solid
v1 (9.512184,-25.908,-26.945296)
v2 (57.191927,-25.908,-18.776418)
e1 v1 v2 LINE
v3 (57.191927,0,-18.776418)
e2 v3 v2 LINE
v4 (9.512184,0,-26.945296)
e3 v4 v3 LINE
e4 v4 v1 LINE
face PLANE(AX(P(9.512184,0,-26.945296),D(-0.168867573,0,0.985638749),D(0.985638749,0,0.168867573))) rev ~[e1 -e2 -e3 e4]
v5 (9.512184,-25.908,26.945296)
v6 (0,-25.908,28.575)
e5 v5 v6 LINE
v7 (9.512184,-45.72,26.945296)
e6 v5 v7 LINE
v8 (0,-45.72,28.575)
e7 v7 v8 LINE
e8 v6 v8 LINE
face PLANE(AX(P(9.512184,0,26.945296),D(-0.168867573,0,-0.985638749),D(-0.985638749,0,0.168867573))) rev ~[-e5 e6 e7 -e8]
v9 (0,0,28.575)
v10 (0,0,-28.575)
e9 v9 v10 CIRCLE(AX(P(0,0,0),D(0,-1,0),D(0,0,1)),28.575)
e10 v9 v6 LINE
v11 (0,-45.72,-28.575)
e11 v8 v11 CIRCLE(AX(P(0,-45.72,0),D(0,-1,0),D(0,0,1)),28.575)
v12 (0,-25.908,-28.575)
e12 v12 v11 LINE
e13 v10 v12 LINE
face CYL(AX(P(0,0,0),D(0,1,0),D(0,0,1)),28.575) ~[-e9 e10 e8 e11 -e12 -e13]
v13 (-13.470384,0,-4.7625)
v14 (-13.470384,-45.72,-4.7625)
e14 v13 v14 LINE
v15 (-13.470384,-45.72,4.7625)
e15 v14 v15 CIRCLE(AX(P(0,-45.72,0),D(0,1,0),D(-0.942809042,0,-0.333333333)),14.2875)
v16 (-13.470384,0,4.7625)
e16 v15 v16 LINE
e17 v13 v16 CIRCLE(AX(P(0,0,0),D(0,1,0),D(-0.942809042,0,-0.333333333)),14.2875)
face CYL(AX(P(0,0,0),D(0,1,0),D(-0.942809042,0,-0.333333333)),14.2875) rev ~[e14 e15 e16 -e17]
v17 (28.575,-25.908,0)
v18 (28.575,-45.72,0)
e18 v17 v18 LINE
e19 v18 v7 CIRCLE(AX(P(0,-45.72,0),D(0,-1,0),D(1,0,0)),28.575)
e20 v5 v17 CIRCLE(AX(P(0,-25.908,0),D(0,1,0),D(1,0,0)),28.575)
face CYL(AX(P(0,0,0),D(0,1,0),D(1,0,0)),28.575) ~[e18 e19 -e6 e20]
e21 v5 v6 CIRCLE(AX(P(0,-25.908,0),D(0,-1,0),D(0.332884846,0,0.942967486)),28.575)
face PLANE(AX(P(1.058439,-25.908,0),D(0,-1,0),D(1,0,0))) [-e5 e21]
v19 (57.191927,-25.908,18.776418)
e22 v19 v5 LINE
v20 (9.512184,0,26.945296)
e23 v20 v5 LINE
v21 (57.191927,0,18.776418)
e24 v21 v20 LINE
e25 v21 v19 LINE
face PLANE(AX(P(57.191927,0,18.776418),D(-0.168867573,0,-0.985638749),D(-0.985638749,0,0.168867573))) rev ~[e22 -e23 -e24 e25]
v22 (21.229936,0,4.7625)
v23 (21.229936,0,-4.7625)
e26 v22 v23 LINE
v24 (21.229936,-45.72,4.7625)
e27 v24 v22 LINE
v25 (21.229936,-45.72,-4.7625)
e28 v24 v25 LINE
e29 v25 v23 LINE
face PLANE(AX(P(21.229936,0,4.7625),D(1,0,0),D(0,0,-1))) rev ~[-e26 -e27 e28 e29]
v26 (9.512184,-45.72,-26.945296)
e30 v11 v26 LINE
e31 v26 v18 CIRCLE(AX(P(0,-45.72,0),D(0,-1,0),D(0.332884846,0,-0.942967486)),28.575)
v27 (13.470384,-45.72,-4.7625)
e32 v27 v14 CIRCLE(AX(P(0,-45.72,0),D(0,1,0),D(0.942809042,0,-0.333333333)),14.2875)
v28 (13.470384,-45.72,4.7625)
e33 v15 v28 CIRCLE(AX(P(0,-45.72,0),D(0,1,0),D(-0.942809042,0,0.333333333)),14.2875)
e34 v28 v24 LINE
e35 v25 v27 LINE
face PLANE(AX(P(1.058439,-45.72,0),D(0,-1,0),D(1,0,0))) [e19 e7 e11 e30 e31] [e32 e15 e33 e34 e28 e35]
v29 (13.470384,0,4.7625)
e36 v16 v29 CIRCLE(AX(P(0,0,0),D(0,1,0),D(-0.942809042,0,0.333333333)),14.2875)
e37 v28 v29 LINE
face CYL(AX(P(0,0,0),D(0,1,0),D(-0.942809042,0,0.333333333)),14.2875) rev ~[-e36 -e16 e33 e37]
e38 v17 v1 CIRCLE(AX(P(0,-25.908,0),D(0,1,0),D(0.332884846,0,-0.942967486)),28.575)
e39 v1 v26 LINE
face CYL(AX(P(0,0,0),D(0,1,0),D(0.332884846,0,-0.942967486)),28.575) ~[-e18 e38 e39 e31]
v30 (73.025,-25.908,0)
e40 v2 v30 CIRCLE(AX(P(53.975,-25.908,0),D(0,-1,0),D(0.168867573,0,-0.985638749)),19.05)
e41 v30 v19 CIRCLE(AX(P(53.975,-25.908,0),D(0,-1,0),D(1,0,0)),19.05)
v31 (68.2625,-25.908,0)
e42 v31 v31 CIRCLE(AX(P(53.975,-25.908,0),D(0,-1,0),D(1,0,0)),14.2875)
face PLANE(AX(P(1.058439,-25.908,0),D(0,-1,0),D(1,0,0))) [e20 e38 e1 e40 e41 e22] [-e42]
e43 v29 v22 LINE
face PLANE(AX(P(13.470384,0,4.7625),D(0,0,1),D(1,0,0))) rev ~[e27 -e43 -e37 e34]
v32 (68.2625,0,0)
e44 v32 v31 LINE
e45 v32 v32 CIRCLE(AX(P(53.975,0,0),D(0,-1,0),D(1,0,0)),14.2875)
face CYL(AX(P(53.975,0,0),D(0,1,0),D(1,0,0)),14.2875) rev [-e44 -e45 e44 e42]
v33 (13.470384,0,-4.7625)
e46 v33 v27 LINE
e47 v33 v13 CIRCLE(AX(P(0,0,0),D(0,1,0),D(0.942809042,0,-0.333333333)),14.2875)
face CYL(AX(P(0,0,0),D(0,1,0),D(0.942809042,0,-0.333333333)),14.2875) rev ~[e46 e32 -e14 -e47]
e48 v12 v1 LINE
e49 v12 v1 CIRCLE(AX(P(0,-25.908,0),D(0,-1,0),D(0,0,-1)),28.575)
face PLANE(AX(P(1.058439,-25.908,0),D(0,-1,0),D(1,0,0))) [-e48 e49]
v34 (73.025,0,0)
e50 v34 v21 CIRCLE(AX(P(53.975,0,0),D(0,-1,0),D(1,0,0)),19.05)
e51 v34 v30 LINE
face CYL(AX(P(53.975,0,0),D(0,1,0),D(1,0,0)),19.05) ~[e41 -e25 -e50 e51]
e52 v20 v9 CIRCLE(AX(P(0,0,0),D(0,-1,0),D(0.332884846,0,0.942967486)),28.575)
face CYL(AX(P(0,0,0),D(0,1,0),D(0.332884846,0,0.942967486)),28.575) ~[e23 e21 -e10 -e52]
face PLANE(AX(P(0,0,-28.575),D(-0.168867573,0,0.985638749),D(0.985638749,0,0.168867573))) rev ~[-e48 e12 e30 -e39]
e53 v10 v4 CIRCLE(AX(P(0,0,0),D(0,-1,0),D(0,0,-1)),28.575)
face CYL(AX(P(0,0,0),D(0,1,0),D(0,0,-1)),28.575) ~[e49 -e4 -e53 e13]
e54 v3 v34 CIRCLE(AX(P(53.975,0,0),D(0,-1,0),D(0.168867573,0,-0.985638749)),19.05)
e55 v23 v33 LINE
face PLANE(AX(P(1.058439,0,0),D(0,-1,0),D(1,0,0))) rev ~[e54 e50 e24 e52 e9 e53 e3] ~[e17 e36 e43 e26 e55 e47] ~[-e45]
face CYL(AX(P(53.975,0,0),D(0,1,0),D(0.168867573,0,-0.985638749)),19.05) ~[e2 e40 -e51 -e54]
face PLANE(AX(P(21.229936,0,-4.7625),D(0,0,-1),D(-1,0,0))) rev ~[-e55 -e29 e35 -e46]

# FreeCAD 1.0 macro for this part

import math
import FreeCAD as App
import Part
import Sketcher
Q = App.Units.Quantity

doc = App.newDocument("Part")
params = doc.addObject("Spreadsheet::Sheet", "Params")
for row, (alias, value) in enumerate([
    ("sketch1_radius", "1.125 in"),
    ("sketch1_radius2", "0.5625 in"),
    ("sketch1_height", "0.375 in"),
    ("pad1_length", "1.8 in"),
    ("sketch2_radius", "0.75 in"),
    ("sketch2_diameter", "1.125 in"),
    ("sketch2_radius2", "1.125 in"),
    ("sketch2_height", "0.375 in"),
    ("pad2_length", "1.02 in"),
], start=1):
    params.set(f"A{row}", alias)
    params.set(f"B{row}", "=" + value)
    params.setAlias(f"B{row}", alias)

body = doc.addObject("PartDesign::Body", "Body")

# Sketch on XZ plane
sketch1 = body.newObject("Sketcher::SketchObject", "Sketch")
sketch1.AttachmentSupport = (doc.getObject("XZ_Plane"), [""])
sketch1.MapMode = "FlatFace"
sketch1.addGeometry(Part.LineSegment(App.Vector(9.512184, 26.945296, 0), App.Vector(0, 28.575, 0)), False)
sketch1.addGeometry(Part.ArcOfCircle(Part.Circle(App.Vector(0, 0, 0), App.Vector(0, 0, 1), 28.575), math.radians(90), math.radians(270)), False)
sketch1.addGeometry(Part.LineSegment(App.Vector(0, -28.575, 0), App.Vector(9.512184, -26.945296, 0)), False)
sketch1.addGeometry(Part.ArcOfCircle(Part.Circle(App.Vector(0, 0, 0), App.Vector(0, 0, 1), 28.575), math.radians(-70.556032), math.radians(0)), False)
sketch1.addGeometry(Part.ArcOfCircle(Part.Circle(App.Vector(0, 0, 0), App.Vector(0, 0, 1), 28.575), math.radians(0), math.radians(70.556032)), False)
sketch1.addGeometry(Part.ArcOfCircle(Part.Circle(App.Vector(0, 0, 0), App.Vector(0, 0, 1), 14.2875), math.radians(-160.528779), math.radians(-19.471221)), False)
sketch1.addGeometry(Part.ArcOfCircle(Part.Circle(App.Vector(0, 0, 0), App.Vector(0, 0, 1), 14.2875), math.radians(160.528779), math.radians(199.471221)), False)
sketch1.addGeometry(Part.ArcOfCircle(Part.Circle(App.Vector(0, 0, 0), App.Vector(0, 0, 1), 14.2875), math.radians(19.471221), math.radians(160.528779)), False)
sketch1.addGeometry(Part.LineSegment(App.Vector(13.470384, 4.7625, 0), App.Vector(21.229936, 4.7625, 0)), False)
sketch1.addGeometry(Part.LineSegment(App.Vector(21.229936, 4.7625, 0), App.Vector(21.229936, -4.7625, 0)), False)
sketch1.addGeometry(Part.LineSegment(App.Vector(21.229936, -4.7625, 0), App.Vector(13.470384, -4.7625, 0)), False)
sketch1.addConstraint(Sketcher.Constraint("Coincident", 0, 2, 1, 1))
sketch1.addConstraint(Sketcher.Constraint("Coincident", 1, 2, 2, 1))
sketch1.addConstraint(Sketcher.Constraint("Coincident", 2, 2, 3, 1))
sketch1.addConstraint(Sketcher.Constraint("Tangent", 3, 2, 4, 1))
sketch1.addConstraint(Sketcher.Constraint("Coincident", 4, 2, 0, 1))
sketch1.addConstraint(Sketcher.Constraint("Tangent", 5, 1, 6, 2))
sketch1.addConstraint(Sketcher.Constraint("Tangent", 6, 1, 7, 2))
sketch1.addConstraint(Sketcher.Constraint("Coincident", 7, 1, 8, 1))
sketch1.addConstraint(Sketcher.Constraint("Coincident", 8, 2, 9, 1))
sketch1.addConstraint(Sketcher.Constraint("Coincident", 9, 2, 10, 1))
sketch1.addConstraint(Sketcher.Constraint("Coincident", 10, 2, 5, 2))
sketch1.addConstraint(Sketcher.Constraint("Horizontal", 8))
sketch1.addConstraint(Sketcher.Constraint("Vertical", 9))
sketch1.addConstraint(Sketcher.Constraint("Horizontal", 10))
sketch1.addConstraint(Sketcher.Constraint("Coincident", 1, 3, -1, 1))
sketch1.addConstraint(Sketcher.Constraint("Coincident", 3, 3, -1, 1))
sketch1.addConstraint(Sketcher.Constraint("Coincident", 5, 3, -1, 1))
sketch1.addConstraint(Sketcher.Constraint("Coincident", 7, 3, -1, 1))
sketch1.addConstraint(Sketcher.Constraint("Equal", 1, 3))
sketch1.addConstraint(Sketcher.Constraint("Equal", 3, 4))
sketch1.addConstraint(Sketcher.Constraint("PointOnObject", 0, 2, -2))
sketch1.addConstraint(Sketcher.Constraint("PointOnObject", 1, 2, -2))
sketch1.addConstraint(Sketcher.Constraint("PointOnObject", 3, 2, -1))
sketch1.addConstraint(Sketcher.Constraint("Horizontal", 6, 1, 7, 1))
sketch1.addConstraint(Sketcher.Constraint("Horizontal", 5, 1, 9, 2))
sketch1.addConstraint(Sketcher.Constraint("Vertical", 2, 2, 4, 2))
sketch1.addConstraint(Sketcher.Constraint("Vertical", 5, 1, 6, 1))
sketch1.addConstraint(Sketcher.Constraint("Radius", 1, Q("1.125 in")))
sketch1.addConstraint(Sketcher.Constraint("Radius", 5, Q("0.5625 in")))
sketch1.addConstraint(Sketcher.Constraint("DistanceY", 9, 2, 9, 1, Q("0.375 in")))
sketch1.addConstraint(Sketcher.Constraint("Distance", 0, Q("9.650782 mm")))
sketch1.addConstraint(Sketcher.Constraint("DistanceX", 8, 1, 8, 2, Q("7.759552 mm")))
sketch1.setExpression("Constraints[27]", "Params.sketch1_radius")
sketch1.setExpression("Constraints[28]", "Params.sketch1_radius2")
sketch1.setExpression("Constraints[29]", "Params.sketch1_height")
pad1 = body.newObject("PartDesign::Pad", "Pad")
pad1.Profile = sketch1
pad1.setExpression("Length", "Params.pad1_length")

# Sketch on XZ plane
sketch2 = body.newObject("Sketcher::SketchObject", "Sketch001")
sketch2.AttachmentSupport = (doc.getObject("XZ_Plane"), [""])
sketch2.MapMode = "FlatFace"
sketch2.addGeometry(Part.ArcOfCircle(Part.Circle(App.Vector(0, 0, 0), App.Vector(0, 0, 1), 28.575), math.radians(70.556032), math.radians(90)), False)
sketch2.addGeometry(Part.ArcOfCircle(Part.Circle(App.Vector(0, 0, 0), App.Vector(0, 0, 1), 28.575), math.radians(90), math.radians(270)), False)
sketch2.addGeometry(Part.ArcOfCircle(Part.Circle(App.Vector(0, 0, 0), App.Vector(0, 0, 1), 28.575), math.radians(-90), math.radians(-70.556032)), False)
sketch2.addGeometry(Part.LineSegment(App.Vector(9.512184, -26.945296, 0), App.Vector(57.191927, -18.776418, 0)), False)
sketch2.addGeometry(Part.ArcOfCircle(Part.Circle(App.Vector(53.975, 0, 0), App.Vector(0, 0, 1), 19.05), math.radians(-80.278016), math.radians(0)), False)
sketch2.addGeometry(Part.ArcOfCircle(Part.Circle(App.Vector(53.975, 0, 0), App.Vector(0, 0, 1), 19.05), math.radians(0), math.radians(80.278016)), False)
sketch2.addGeometry(Part.LineSegment(App.Vector(57.191927, 18.776418, 0), App.Vector(9.512184, 26.945296, 0)), False)
sketch2.addGeometry(Part.Circle(App.Vector(53.975, 0, 0), App.Vector(0, 0, 1), 14.2875), False)
sketch2.addGeometry(Part.LineSegment(App.Vector(-16.870064, 4.7625, 0), App.Vector(-13.470384, 4.7625, 0)), False)
sketch2.addGeometry(Part.ArcOfCircle(Part.Circle(App.Vector(0, 0, 0), App.Vector(0, 0, 1), 14.2875), math.radians(19.471221), math.radians(160.528779)), False)
sketch2.addGeometry(Part.LineSegment(App.Vector(13.470384, 4.7625, 0), App.Vector(21.229936, 4.7625, 0)), False)
sketch2.addGeometry(Part.LineSegment(App.Vector(21.229936, 4.7625, 0), App.Vector(21.229936, -4.7625, 0)), False)
sketch2.addGeometry(Part.LineSegment(App.Vector(21.229936, -4.7625, 0), App.Vector(13.470384, -4.7625, 0)), False)
sketch2.addGeometry(Part.ArcOfCircle(Part.Circle(App.Vector(0, 0, 0), App.Vector(0, 0, 1), 14.2875), math.radians(-160.528779), math.radians(-19.471221)), False)
sketch2.addGeometry(Part.LineSegment(App.Vector(-13.470384, -4.7625, 0), App.Vector(-16.870064, -4.7625, 0)), False)
sketch2.addGeometry(Part.LineSegment(App.Vector(-16.870064, -4.7625, 0), App.Vector(-16.870064, 4.7625, 0)), False)
sketch2.addConstraint(Sketcher.Constraint("Tangent", 0, 2, 1, 1))
sketch2.addConstraint(Sketcher.Constraint("Tangent", 1, 2, 2, 1))
sketch2.addConstraint(Sketcher.Constraint("Coincident", 2, 2, 3, 1))
sketch2.addConstraint(Sketcher.Constraint("Tangent", 3, 2, 4, 1))
sketch2.addConstraint(Sketcher.Constraint("Tangent", 4, 2, 5, 1))
sketch2.addConstraint(Sketcher.Constraint("Tangent", 5, 2, 6, 1))
sketch2.addConstraint(Sketcher.Constraint("Coincident", 6, 2, 0, 1))
sketch2.addConstraint(Sketcher.Constraint("Coincident", 8, 2, 9, 2))
sketch2.addConstraint(Sketcher.Constraint("Coincident", 9, 1, 10, 1))
sketch2.addConstraint(Sketcher.Constraint("Coincident", 10, 2, 11, 1))
sketch2.addConstraint(Sketcher.Constraint("Coincident", 11, 2, 12, 1))
sketch2.addConstraint(Sketcher.Constraint("Coincident", 12, 2, 13, 2))
sketch2.addConstraint(Sketcher.Constraint("Coincident", 13, 1, 14, 1))
sketch2.addConstraint(Sketcher.Constraint("Coincident", 14, 2, 15, 1))
sketch2.addConstraint(Sketcher.Constraint("Coincident", 15, 2, 8, 1))
sketch2.addConstraint(Sketcher.Constraint("Horizontal", 8))
sketch2.addConstraint(Sketcher.Constraint("Horizontal", 10))
sketch2.addConstraint(Sketcher.Constraint("Vertical", 11))
sketch2.addConstraint(Sketcher.Constraint("Horizontal", 12))
sketch2.addConstraint(Sketcher.Constraint("Horizontal", 14))
sketch2.addConstraint(Sketcher.Constraint("Vertical", 15))
sketch2.addConstraint(Sketcher.Constraint("Coincident", 0, 3, -1, 1))
sketch2.addConstraint(Sketcher.Constraint("Coincident", 9, 3, -1, 1))
sketch2.addConstraint(Sketcher.Constraint("Coincident", 13, 3, -1, 1))
sketch2.addConstraint(Sketcher.Constraint("Coincident", 7, 3, 4, 3))
sketch2.addConstraint(Sketcher.Constraint("Equal", 0, 1))
sketch2.addConstraint(Sketcher.Constraint("Equal", 1, 2))
sketch2.addConstraint(Sketcher.Constraint("Equal", 4, 5))
sketch2.addConstraint(Sketcher.Constraint("Equal", 7, 9))
sketch2.addConstraint(Sketcher.Constraint("Equal", 9, 13))
sketch2.addConstraint(Sketcher.Constraint("Symmetric", 3, 2, 5, 2, -1))
sketch2.addConstraint(Sketcher.Constraint("PointOnObject", 0, 2, -2))
sketch2.addConstraint(Sketcher.Constraint("PointOnObject", 1, 2, -2))
sketch2.addConstraint(Sketcher.Constraint("PointOnObject", 4, 2, -1))
sketch2.addConstraint(Sketcher.Constraint("Horizontal", 8, 2, 9, 1))
sketch2.addConstraint(Sketcher.Constraint("Horizontal", 12, 2, 13, 1))
sketch2.addConstraint(Sketcher.Constraint("Vertical", 9, 1, 12, 2))
sketch2.addConstraint(Sketcher.Constraint("Radius", 4, Q("0.75 in")))
sketch2.addConstraint(Sketcher.Constraint("Diameter", 7, Q("1.125 in")))
sketch2.addConstraint(Sketcher.Constraint("Radius", 0, Q("1.125 in")))
sketch2.addConstraint(Sketcher.Constraint("DistanceY", 11, 2, 11, 1, Q("0.375 in")))
sketch2.addConstraint(Sketcher.Constraint("DistanceX", -1, 1, 4, 3, Q("2.125 in")))
sketch2.addConstraint(Sketcher.Constraint("DistanceX", 8, 1, 8, 2, Q("3.39968 mm")))
sketch2.addConstraint(Sketcher.Constraint("Distance", 3, Q("48.374461 mm")))
sketch2.addConstraint(Sketcher.Constraint("DistanceX", 10, 1, 10, 2, Q("7.759552 mm")))
sketch2.setExpression("Constraints[37]", "Params.sketch2_radius")
sketch2.setExpression("Constraints[38]", "Params.sketch2_diameter")
sketch2.setExpression("Constraints[39]", "Params.sketch2_radius2")
sketch2.setExpression("Constraints[40]", "Params.sketch2_height")
pad2 = body.newObject("PartDesign::Pad", "Pad001")
pad2.Profile = sketch2
pad2.setExpression("Length", "Params.pad2_length")

doc.recompute()
